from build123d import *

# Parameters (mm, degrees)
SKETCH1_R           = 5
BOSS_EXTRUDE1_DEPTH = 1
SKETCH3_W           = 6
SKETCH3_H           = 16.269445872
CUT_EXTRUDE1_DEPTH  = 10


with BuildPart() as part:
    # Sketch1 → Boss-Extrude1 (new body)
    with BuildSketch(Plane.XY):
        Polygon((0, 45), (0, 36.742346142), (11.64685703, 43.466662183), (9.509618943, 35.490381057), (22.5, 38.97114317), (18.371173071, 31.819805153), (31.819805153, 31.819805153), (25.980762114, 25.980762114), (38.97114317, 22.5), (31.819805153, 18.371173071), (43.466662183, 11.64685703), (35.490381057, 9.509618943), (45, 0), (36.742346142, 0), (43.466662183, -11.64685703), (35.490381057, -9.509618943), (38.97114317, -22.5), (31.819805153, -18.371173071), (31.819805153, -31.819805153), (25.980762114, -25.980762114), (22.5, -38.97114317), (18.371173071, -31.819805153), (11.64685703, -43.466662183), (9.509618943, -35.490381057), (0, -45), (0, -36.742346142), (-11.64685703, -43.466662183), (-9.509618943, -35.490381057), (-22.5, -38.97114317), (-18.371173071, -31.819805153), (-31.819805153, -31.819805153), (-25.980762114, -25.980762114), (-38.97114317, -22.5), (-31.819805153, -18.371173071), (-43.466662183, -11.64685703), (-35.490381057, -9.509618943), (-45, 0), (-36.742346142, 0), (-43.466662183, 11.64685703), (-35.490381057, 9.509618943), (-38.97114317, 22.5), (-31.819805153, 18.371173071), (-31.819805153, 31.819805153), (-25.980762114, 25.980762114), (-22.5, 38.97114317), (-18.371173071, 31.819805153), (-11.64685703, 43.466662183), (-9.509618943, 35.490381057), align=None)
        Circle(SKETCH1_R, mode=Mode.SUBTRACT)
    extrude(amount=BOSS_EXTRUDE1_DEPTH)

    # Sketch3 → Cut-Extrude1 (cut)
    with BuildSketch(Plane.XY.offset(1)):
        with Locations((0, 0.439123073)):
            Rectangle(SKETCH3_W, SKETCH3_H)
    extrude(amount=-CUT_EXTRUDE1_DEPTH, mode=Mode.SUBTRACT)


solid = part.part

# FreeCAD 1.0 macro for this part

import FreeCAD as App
import Part
import Sketcher
Q = App.Units.Quantity


def add_polygon(sketch, points):
    """Adds a closed chain of lines whose ends are joined by coincident constraints."""
    first, n = sketch.GeometryCount, len(points)
    for a, b in zip(points, points[1:] + points[:1]):
        sketch.addGeometry(Part.LineSegment(App.Vector(*a, 0), App.Vector(*b, 0)), False)
    for i in range(n):
        sketch.addConstraint(Sketcher.Constraint("Coincident", first + i, 2, first + (i + 1) % n, 1))

doc = App.newDocument("Part")
body = doc.addObject("PartDesign::Body", "Body")

# Sketch on XY plane
sketch1 = body.newObject("Sketcher::SketchObject", "Sketch")
sketch1.AttachmentSupport = (doc.getObject("XY_Plane"), [""])
sketch1.MapMode = "FlatFace"
add_polygon(sketch1, [(0, 37), (0, 45), (-10, 35), (-12, 43), (-18, 32), (-22, 39), (-26, 26), (-32, 32), (-32, 18), (-39, 22), (-35, 10), (-43, 12), (-37, 0), (-45, 0), (-35, -10), (-43, -12), (-32, -18), (-39, -22), (-26, -26), (-32, -32), (-18, -32), (-22, -39), (-10, -35), (-12, -43), (0, -37), (0, -45), (10, -35), (12, -43), (18, -32), (22, -39), (26, -26), (32, -32), (32, -18), (39, -22), (35, -10), (43, -12), (37, 0), (45, 0), (35, 10), (43, 12), (32, 18), (39, 22), (26, 26), (32, 32), (18, 32), (22, 39), (10, 35), (12, 43)])  # lines 0-47
sketch1.addGeometry(Part.Circle(App.Vector(0, 0, 0), App.Vector(0, 0, 1), 5), False)  # 48
sketch1.addConstraint([
    Sketcher.Constraint("Vertical", 0),
    Sketcher.Constraint("Vertical", 7),
    Sketcher.Constraint("Horizontal", 12),
    Sketcher.Constraint("Horizontal", 19),
    Sketcher.Constraint("Vertical", 24),
    Sketcher.Constraint("Vertical", 31),
    Sketcher.Constraint("Horizontal", 36),
    Sketcher.Constraint("Horizontal", 43),
    Sketcher.Constraint("Coincident", 48, 3, -1, 1),
    Sketcher.Constraint("Symmetric", 0, 2, 24, 2, -1, 1),
    Sketcher.Constraint("Symmetric", 1, 2, 25, 2, -1, 1),
    Sketcher.Constraint("Symmetric", 2, 2, 26, 2, -1, 1),
    Sketcher.Constraint("Symmetric", 3, 2, 27, 2, -1, 1),
    Sketcher.Constraint("Symmetric", 4, 2, 28, 2, -1, 1),
    Sketcher.Constraint("Symmetric", 5, 2, 29, 2, -1, 1),
    Sketcher.Constraint("Symmetric", 6, 2, 30, 2, -1, 1),
    Sketcher.Constraint("Symmetric", 8, 2, 32, 2, -1, 1),
    Sketcher.Constraint("Symmetric", 9, 2, 33, 2, -1, 1),
    Sketcher.Constraint("Symmetric", 10, 2, 34, 2, -1, 1),
    Sketcher.Constraint("Symmetric", 11, 2, 35, 2, -1, 1),
    Sketcher.Constraint("Symmetric", 13, 2, 37, 2, -1, 1),
    Sketcher.Constraint("Symmetric", 14, 2, 38, 2, -1, 1),
    Sketcher.Constraint("Symmetric", 15, 2, 39, 2, -1, 1),
    Sketcher.Constraint("Symmetric", 16, 2, 40, 2, -1, 1),
    Sketcher.Constraint("Symmetric", 17, 2, 41, 2, -1, 1),
    Sketcher.Constraint("Symmetric", 18, 2, 42, 2, -1, 1),
    Sketcher.Constraint("Symmetric", 20, 2, 44, 2, -1, 1),
    Sketcher.Constraint("Symmetric", 21, 2, 45, 2, -1, 1),
    Sketcher.Constraint("Symmetric", 22, 2, 46, 2, -1, 1),
    Sketcher.Constraint("Symmetric", 21, 2, 25, 2, -2),
    Sketcher.Constraint("Symmetric", 22, 2, 26, 2, -2),
    Sketcher.Constraint("Symmetric", 19, 2, 27, 2, -2),
    Sketcher.Constraint("Symmetric", 20, 2, 28, 2, -2),
    Sketcher.Constraint("Symmetric", 17, 2, 29, 2, -2),
    Sketcher.Constraint("Symmetric", 18, 2, 30, 2, -2),
    Sketcher.Constraint("Symmetric", 15, 2, 31, 2, -2),
    Sketcher.Constraint("Symmetric", 16, 2, 32, 2, -2),
    Sketcher.Constraint("Symmetric", 13, 2, 33, 2, -2),
    Sketcher.Constraint("Symmetric", 14, 2, 34, 2, -2),
    Sketcher.Constraint("Symmetric", 12, 2, 36, 2, -2),
    Sketcher.Constraint("Symmetric", 23, 2, 47, 2, -1),
    Sketcher.Constraint("Perpendicular", 1, 6),
    Sketcher.Constraint("Perpendicular", 3, 8),
    Sketcher.Constraint("Parallel", 2, 9),
    Sketcher.Constraint("Perpendicular", 5, 10),
    Sketcher.Constraint("Parallel", 4, 11),
    Sketcher.Constraint("Parallel", 6, 13),
    Sketcher.Constraint("Perpendicular", 9, 14),
    Sketcher.Constraint("Parallel", 8, 15),
    Sketcher.Constraint("Perpendicular", 11, 16),
    Sketcher.Constraint("Parallel", 10, 17),
    Sketcher.Constraint("Perpendicular", 13, 18),
    Sketcher.Constraint("Perpendicular", 15, 20),
    Sketcher.Constraint("Parallel", 14, 21),
    Sketcher.Constraint("Parallel", 16, 23),
    Sketcher.Constraint("Perpendicular", 39, 44),
    Sketcher.Constraint("Equal", 36, 0),
    Sketcher.Constraint("Equal", 43, 7),
    Sketcher.Constraint("Equal", 1, 3),
    Sketcher.Constraint("Equal", 2, 4),
    Sketcher.Constraint("Equal", 3, 5),
    Sketcher.Constraint("Equal", 4, 6),
    Sketcher.Constraint("Equal", 5, 9),
    Sketcher.Constraint("Equal", 8, 10),
    Sketcher.Constraint("Diameter", 48, Q("10 mm")),
    Sketcher.Constraint("DistanceY", -1, 1, 0, 2, Q("45 mm")),
])
pad1 = body.newObject("PartDesign::Pad", "Pad")
pad1.Profile = sketch1
pad1.Length = 1

# Sketch on XY plane
sketch2 = body.newObject("Sketcher::SketchObject", "Sketch001")
sketch2.AttachmentSupport = (doc.getObject("XY_Plane"), [""])
sketch2.MapMode = "FlatFace"
sketch2.AttachmentOffset = App.Placement(App.Vector(0, 0, 1), App.Rotation())
add_polygon(sketch2, [(-3, 9), (-3, -8), (3, -8), (3, 9)])  # lines 0-3
sketch2.addConstraint([
    Sketcher.Constraint("Vertical", 0),
    Sketcher.Constraint("Horizontal", 1),
    Sketcher.Constraint("Vertical", 2),
    Sketcher.Constraint("Horizontal", 3),
    Sketcher.Constraint("DistanceX", 1, 1, 1, 2, Q("6 mm")),
    Sketcher.Constraint("DistanceX", 0, 2, -1, 1, Q("3 mm")),
    Sketcher.Constraint("DistanceY", 0, 2, -1, 1, Q("7.6956 mm")),
    Sketcher.Constraint("DistanceY", 0, 2, 0, 1, Q("16.269446 mm")),
])
pocket1 = body.newObject("PartDesign::Pocket", "Pocket")
pocket1.Profile = sketch2
pocket1.Length = 10

doc.recompute()
